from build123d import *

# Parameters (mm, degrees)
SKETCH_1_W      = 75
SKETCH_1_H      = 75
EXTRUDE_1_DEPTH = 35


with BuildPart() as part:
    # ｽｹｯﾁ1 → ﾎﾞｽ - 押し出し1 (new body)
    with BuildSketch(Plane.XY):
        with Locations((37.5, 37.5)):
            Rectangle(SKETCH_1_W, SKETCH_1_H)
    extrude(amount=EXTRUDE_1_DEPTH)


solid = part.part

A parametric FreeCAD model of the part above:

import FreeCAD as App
import Part
import Sketcher
from FreeCAD import Vector

doc = App.newDocument("Part")
body = doc.addObject("PartDesign::Body", "Body")

# Sketch on XY plane
sketch1 = body.newObject("Sketcher::SketchObject", "Sketch")
sketch1.AttachmentSupport = (doc.getObject("XY_Plane"), [""])
sketch1.MapMode = "FlatFace"
sketch1.addGeometry([
    Part.LineSegment(Vector(0, 75, 0), Vector(0, 0, 0)),
    Part.LineSegment(Vector(0, 0, 0), Vector(75, 0, 0)),
    Part.LineSegment(Vector(75, 0, 0), Vector(75, 75, 0)),
    Part.LineSegment(Vector(75, 75, 0), Vector(0, 75, 0)),
], False)
sketch1.addConstraint([
    Sketcher.Constraint("Coincident", 0, 2, 1, 1),
    Sketcher.Constraint("Coincident", 1, 2, 2, 1),
    Sketcher.Constraint("Coincident", 2, 2, 3, 1),
    Sketcher.Constraint("Coincident", 3, 2, 0, 1),
    Sketcher.Constraint("Vertical", 0),
    Sketcher.Constraint("Horizontal", 1),
    Sketcher.Constraint("Vertical", 2),
    Sketcher.Constraint("Horizontal", 3),
    Sketcher.Constraint("Coincident", 0, 2, -1, 1),
    Sketcher.Constraint("Equal", 3, 0),
    Sketcher.Constraint("DistanceX", 1, 1, 1, 2, 75.0),
])
pad1 = body.newObject("PartDesign::Pad", "Pad")
pad1.Profile = sketch1
pad1.Length = 35

doc.recompute()
